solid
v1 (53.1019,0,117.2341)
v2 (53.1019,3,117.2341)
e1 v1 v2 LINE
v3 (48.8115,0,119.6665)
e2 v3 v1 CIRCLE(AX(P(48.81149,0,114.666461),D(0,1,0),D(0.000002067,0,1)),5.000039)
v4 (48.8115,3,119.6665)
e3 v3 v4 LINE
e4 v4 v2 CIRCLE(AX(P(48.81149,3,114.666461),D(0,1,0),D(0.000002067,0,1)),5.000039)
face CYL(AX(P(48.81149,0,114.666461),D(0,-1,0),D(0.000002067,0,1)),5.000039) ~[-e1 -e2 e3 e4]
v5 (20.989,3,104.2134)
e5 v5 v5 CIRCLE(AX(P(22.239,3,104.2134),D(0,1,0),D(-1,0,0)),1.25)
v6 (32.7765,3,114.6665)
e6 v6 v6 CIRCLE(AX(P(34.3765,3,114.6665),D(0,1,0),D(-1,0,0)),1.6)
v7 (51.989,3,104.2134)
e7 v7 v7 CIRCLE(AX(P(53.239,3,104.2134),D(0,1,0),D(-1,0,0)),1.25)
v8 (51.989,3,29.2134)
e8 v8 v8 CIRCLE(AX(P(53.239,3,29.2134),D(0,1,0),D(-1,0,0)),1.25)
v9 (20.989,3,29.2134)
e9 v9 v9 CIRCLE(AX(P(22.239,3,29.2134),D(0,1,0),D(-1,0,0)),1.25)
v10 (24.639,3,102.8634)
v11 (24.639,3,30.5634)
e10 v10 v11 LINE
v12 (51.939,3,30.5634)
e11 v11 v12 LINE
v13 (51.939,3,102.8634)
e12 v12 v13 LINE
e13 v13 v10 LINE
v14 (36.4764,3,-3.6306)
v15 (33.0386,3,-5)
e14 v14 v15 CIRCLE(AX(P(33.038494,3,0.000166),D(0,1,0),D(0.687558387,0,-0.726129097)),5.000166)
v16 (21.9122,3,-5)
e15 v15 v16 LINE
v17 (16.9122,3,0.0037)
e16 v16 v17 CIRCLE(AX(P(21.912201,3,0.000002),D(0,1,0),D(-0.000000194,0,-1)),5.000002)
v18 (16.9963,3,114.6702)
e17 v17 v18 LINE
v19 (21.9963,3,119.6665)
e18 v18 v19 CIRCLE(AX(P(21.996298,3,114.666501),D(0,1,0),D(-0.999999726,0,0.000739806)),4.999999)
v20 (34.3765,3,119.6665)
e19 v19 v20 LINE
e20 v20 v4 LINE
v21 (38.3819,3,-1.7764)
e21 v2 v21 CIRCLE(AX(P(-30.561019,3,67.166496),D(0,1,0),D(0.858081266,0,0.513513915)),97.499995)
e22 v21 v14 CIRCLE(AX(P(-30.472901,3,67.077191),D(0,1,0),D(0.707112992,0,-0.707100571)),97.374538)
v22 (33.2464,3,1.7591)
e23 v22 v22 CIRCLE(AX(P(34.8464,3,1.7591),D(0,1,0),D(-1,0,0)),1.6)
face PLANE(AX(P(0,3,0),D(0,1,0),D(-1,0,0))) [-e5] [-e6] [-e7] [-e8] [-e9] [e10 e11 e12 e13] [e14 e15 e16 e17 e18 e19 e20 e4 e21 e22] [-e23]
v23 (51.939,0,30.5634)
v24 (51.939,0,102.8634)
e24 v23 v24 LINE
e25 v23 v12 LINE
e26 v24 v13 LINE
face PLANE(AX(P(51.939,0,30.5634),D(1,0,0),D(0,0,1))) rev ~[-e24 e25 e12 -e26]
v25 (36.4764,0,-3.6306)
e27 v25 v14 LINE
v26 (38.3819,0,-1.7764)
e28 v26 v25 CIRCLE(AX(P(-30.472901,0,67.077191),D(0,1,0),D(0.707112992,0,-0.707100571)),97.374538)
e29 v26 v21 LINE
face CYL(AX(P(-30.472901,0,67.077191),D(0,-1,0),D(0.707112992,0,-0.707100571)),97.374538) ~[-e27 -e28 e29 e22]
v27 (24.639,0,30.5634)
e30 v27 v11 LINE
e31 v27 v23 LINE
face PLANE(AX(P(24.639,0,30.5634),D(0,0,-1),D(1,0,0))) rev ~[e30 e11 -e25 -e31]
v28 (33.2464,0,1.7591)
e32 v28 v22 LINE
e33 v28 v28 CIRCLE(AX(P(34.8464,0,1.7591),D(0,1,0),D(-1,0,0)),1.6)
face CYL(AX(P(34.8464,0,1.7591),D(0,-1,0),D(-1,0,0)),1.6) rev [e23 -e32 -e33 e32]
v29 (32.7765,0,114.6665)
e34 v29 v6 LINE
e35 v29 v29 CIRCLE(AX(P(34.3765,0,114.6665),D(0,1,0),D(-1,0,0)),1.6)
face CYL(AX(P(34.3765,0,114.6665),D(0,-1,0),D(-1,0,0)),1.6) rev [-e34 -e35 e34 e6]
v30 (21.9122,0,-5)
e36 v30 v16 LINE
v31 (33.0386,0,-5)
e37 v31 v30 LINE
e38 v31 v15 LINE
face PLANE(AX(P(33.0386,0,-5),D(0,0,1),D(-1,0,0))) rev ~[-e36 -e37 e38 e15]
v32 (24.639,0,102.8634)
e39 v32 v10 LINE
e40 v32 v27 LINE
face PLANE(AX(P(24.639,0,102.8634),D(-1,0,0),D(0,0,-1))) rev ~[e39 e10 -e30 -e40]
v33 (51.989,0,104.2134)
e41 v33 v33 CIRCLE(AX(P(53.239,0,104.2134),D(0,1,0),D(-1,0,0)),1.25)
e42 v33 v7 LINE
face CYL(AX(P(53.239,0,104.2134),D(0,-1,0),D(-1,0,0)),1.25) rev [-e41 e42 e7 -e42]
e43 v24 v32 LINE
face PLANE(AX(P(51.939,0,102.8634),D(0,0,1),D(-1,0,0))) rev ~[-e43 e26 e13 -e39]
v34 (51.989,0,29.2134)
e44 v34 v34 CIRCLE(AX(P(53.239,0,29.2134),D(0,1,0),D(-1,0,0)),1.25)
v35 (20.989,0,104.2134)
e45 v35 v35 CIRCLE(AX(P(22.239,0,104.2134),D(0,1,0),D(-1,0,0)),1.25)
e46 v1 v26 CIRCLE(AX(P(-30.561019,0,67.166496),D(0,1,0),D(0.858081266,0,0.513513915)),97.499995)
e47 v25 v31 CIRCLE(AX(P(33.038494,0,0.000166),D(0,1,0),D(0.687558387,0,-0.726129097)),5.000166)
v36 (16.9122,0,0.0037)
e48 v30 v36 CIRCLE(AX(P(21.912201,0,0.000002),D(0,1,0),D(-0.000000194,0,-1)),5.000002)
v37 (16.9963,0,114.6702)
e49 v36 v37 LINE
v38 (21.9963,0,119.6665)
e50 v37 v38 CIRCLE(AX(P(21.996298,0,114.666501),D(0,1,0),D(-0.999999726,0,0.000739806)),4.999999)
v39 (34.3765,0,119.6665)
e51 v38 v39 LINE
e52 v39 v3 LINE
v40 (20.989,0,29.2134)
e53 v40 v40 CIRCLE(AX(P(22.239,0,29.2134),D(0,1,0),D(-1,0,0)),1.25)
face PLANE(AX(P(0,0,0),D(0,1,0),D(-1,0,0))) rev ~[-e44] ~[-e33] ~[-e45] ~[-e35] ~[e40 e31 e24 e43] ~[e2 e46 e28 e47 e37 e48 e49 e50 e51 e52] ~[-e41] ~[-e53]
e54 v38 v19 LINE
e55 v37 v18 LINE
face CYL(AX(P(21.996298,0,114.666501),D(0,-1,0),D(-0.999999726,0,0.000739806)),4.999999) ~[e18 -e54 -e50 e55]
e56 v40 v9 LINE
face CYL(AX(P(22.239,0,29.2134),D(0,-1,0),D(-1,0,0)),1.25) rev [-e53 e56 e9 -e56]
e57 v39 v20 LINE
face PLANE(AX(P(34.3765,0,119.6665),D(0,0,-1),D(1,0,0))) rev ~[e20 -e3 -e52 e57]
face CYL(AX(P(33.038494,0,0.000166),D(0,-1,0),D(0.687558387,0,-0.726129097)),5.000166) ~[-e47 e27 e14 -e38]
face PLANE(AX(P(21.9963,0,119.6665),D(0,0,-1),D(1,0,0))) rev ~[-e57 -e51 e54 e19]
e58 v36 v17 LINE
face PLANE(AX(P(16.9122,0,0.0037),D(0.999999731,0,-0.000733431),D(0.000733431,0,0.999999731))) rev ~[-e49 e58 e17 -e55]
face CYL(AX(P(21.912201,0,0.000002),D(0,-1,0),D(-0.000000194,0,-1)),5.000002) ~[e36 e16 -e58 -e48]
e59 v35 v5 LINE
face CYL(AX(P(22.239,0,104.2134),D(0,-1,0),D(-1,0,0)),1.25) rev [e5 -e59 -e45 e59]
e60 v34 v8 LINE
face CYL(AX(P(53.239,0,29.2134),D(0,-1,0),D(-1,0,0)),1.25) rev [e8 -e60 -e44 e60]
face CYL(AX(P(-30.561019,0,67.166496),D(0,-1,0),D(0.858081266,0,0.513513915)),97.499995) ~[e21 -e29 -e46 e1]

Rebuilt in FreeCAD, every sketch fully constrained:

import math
import FreeCAD as App
import Part
import Sketcher

V = App.Vector


def add_polygon(sketch, points):
    """Adds a closed chain of lines whose ends are joined by coincident constraints."""
    first, n = sketch.GeometryCount, len(points)
    for a, b in zip(points, points[1:] + points[:1]):
        sketch.addGeometry(Part.LineSegment(App.Vector(*a, 0), App.Vector(*b, 0)), False)
    for i in range(n):
        sketch.addConstraint(Sketcher.Constraint("Coincident", first + i, 2, first + (i + 1) % n, 1))

doc = App.newDocument("Part")
params = doc.addObject("Spreadsheet::Sheet", "Params")
for row, (alias, value) in enumerate([
    ("sketch1_radius", "5 mm"),
    ("sketch1_radius2", "5 mm"),
    ("sketch1_radius3", "5 mm"),
    ("sketch1_diameter", "2.5 mm"),
    ("sketch1_diameter2", "3.2 mm"),
    ("pad1_length", "3 mm"),
], start=1):
    params.set(f"A{row}", alias)
    params.set(f"B{row}", "=" + value)
    params.setAlias(f"B{row}", alias)

body = doc.addObject("PartDesign::Body", "Body")

sketch1 = doc.addObject("Sketcher::SketchObject", "Sketch")
body.addObject(sketch1)
sketch1.AttachmentSupport = (doc.XZ_Plane, [""])
sketch1.MapMode = "FlatFace"
sketch1.addGeometry(Part.ArcOfCircle(Part.Circle(V(48.8115, 114.6665, 0), V(0, 0, 1), 5), math.radians(30.898511), math.radians(90)), False)
sketch1.addGeometry(Part.ArcOfCircle(Part.Circle(V(-30.561, 67.1665, 0), V(0, 0, 1), 97.499984), math.radians(-45), math.radians(30.898178)), False)
sketch1.addGeometry(Part.ArcOfCircle(Part.Circle(V(-30.472901, 67.077191, 0), V(0, 0, 1), 97.374538), math.radians(-46.563974), math.radians(-44.999497)), False)
sketch1.addGeometry(Part.ArcOfCircle(Part.Circle(V(33.0386, 0, 0), V(0, 0, 1), 4.999973), math.radians(-90), math.radians(-46.562431)), False)
sketch1.addGeometry(Part.LineSegment(V(33.0386, -5, 0), V(21.9122, -5, 0)), False)
sketch1.addGeometry(Part.ArcOfCircle(Part.Circle(V(21.9122, 0, 0), V(0, 0, 1), 5), math.radians(179.957601), math.radians(270)), False)
sketch1.addGeometry(Part.LineSegment(V(16.9122, 0.0037, 0), V(16.9963, 114.6702, 0)), False)
sketch1.addGeometry(Part.ArcOfCircle(Part.Circle(V(21.9963, 114.6665, 0), V(0, 0, 1), 5.000001), math.radians(90), math.radians(179.957601)), False)
sketch1.addGeometry(Part.LineSegment(V(21.9963, 119.6665, 0), V(48.8115, 119.6665, 0)), False)
sketch1.addGeometry(Part.Circle(V(53.239, 29.2134, 0), V(0, 0, 1), 1.25), False)
sketch1.addGeometry(Part.Circle(V(34.8464, 1.7591, 0), V(0, 0, 1), 1.6), False)
sketch1.addGeometry(Part.Circle(V(22.239, 29.2134, 0), V(0, 0, 1), 1.25), False)
sketch1.addGeometry(Part.Circle(V(53.239, 104.2134, 0), V(0, 0, 1), 1.25), False)
add_polygon(sketch1, [(51.939, 102.8634), (24.639, 102.8634), (24.639, 30.5634), (51.939, 30.5634)])
sketch1.addGeometry(Part.Circle(V(34.3765, 114.6665, 0), V(0, 0, 1), 1.6), False)
sketch1.addGeometry(Part.Circle(V(22.239, 104.2134, 0), V(0, 0, 1), 1.25), False)
sketch1.addConstraint([
    Sketcher.Constraint("Coincident", 0, 1, 1, 2),
    Sketcher.Constraint("Coincident", 1, 1, 2, 2),
    Sketcher.Constraint("Coincident", 2, 1, 3, 2),
    Sketcher.Constraint("Coincident", 3, 1, 4, 1),
    Sketcher.Constraint("Coincident", 4, 2, 5, 2),
    Sketcher.Constraint("Coincident", 5, 1, 6, 1),
    Sketcher.Constraint("Coincident", 6, 2, 7, 2),
    Sketcher.Constraint("Coincident", 7, 1, 8, 1),
    Sketcher.Constraint("Coincident", 8, 2, 0, 2),
    Sketcher.Constraint("Horizontal", 4),
    Sketcher.Constraint("Horizontal", 8),
    Sketcher.Constraint("Horizontal", 13),
    Sketcher.Constraint("Vertical", 14),
    Sketcher.Constraint("Horizontal", 15),
    Sketcher.Constraint("Vertical", 16),
    Sketcher.Constraint("PointOnObject", 3, 3, -1),
    Sketcher.Constraint("PointOnObject", 5, 3, -1),
    Sketcher.Constraint("Radius", 0, 5.0),
    Sketcher.Constraint("Radius", 3, 5.0),
    Sketcher.Constraint("Radius", 7, 5.0),
    Sketcher.Constraint("Diameter", 9, 2.5),
    Sketcher.Constraint("Diameter", 10, 3.2),
    Sketcher.Constraint("Diameter", 11, 2.5),
    Sketcher.Constraint("Diameter", 12, 2.5),
    Sketcher.Constraint("Diameter", 17, 3.2),
    Sketcher.Constraint("Diameter", 18, 2.5),
    Sketcher.Constraint("Radius", 1, 97.5),
    Sketcher.Constraint("DistanceX", 13, 2, 13, 1, 27.3),
    Sketcher.Constraint("DistanceY", 14, 2, 14, 1, 72.3),
    Sketcher.Constraint("DistanceX", 11, 3, 9, 3, 31.0),
    Sketcher.Constraint("DistanceY", 9, 3, 12, 3, 75.0),
    Sketcher.Constraint("DistanceX", 11, 3, 12, 3, 31.0),
    Sketcher.Constraint("DistanceY", 11, 3, 12, 3, 75.0),
    Sketcher.Constraint("DistanceX", 18, 3, 12, 3, 31.0),
    Sketcher.Constraint("DistanceX", 5, 1, 4, 2, 5.0),
    Sketcher.Constraint("DistanceX", 6, 2, 7, 1, 5.0),
    Sketcher.Constraint("DistanceY", 17, 3, 7, 1, 5.0),
    Sketcher.Constraint("Radius", 2, 97.3745),
    Sketcher.Constraint("DistanceY", 1, 3, 0, 3, 47.5),
    Sketcher.Constraint("DistanceX", 18, 3, 13, 2, 2.4),
    Sketcher.Constraint("DistanceX", 10, 3, 2, 1, 1.63),
    Sketcher.Constraint("DistanceY", 13, 2, 18, 3, 1.35),
    Sketcher.Constraint("DistanceY", 11, 3, 14, 2, 1.35),
    Sketcher.Constraint("DistanceX", 4, 2, 4, 1, 11.1264),
    Sketcher.Constraint("DistanceX", 8, 1, 8, 2, 26.8152),
    Sketcher.Constraint("DistanceX", 1, 3, -1, 1, 30.561),
    Sketcher.Constraint("DistanceX", 2, 3, -1, 1, 30.473),
    Sketcher.Constraint("DistanceX", -1, 1, 9, 3, 53.239),
    Sketcher.Constraint("DistanceY", -1, 1, 10, 3, 1.759),
    Sketcher.Constraint("DistanceX", -1, 1, 0, 1, 53.102),
    Sketcher.Constraint("DistanceY", -1, 1, 0, 1, 117.234),
    Sketcher.Constraint("DistanceX", -1, 1, 1, 1, 38.382),
    Sketcher.Constraint("DistanceX", 2, 3, 5, 3, 52.385),
    Sketcher.Constraint("DistanceX", 5, 3, 7, 3, 0.084),
    Sketcher.Constraint("DistanceY", 9, 3, 0, 3, 85.453),
    Sketcher.Constraint("DistanceX", 17, 3, 0, 3, 14.435),
    Sketcher.Constraint("DistanceY", 2, 1, 11, 3, 32.844),
    Sketcher.Constraint("DistanceY", 6, 2, 0, 1, 2.564),
    Sketcher.Constraint("Distance", 6, 114.6665),
])
sketch1.setExpression("Constraints[21]", "Params.sketch1_radius")
sketch1.setExpression("Constraints[22]", "Params.sketch1_radius2")
sketch1.setExpression("Constraints[23]", "Params.sketch1_radius3")
sketch1.setExpression("Constraints[24]", "Params.sketch1_diameter")
sketch1.setExpression("Constraints[25]", "Params.sketch1_diameter2")
pad1 = doc.addObject("PartDesign::Pad", "Pad")
body.addObject(pad1)
pad1.Profile = sketch1
pad1.setExpression("Length", "Params.pad1_length")
pad1.Reversed = True

doc.recompute()
